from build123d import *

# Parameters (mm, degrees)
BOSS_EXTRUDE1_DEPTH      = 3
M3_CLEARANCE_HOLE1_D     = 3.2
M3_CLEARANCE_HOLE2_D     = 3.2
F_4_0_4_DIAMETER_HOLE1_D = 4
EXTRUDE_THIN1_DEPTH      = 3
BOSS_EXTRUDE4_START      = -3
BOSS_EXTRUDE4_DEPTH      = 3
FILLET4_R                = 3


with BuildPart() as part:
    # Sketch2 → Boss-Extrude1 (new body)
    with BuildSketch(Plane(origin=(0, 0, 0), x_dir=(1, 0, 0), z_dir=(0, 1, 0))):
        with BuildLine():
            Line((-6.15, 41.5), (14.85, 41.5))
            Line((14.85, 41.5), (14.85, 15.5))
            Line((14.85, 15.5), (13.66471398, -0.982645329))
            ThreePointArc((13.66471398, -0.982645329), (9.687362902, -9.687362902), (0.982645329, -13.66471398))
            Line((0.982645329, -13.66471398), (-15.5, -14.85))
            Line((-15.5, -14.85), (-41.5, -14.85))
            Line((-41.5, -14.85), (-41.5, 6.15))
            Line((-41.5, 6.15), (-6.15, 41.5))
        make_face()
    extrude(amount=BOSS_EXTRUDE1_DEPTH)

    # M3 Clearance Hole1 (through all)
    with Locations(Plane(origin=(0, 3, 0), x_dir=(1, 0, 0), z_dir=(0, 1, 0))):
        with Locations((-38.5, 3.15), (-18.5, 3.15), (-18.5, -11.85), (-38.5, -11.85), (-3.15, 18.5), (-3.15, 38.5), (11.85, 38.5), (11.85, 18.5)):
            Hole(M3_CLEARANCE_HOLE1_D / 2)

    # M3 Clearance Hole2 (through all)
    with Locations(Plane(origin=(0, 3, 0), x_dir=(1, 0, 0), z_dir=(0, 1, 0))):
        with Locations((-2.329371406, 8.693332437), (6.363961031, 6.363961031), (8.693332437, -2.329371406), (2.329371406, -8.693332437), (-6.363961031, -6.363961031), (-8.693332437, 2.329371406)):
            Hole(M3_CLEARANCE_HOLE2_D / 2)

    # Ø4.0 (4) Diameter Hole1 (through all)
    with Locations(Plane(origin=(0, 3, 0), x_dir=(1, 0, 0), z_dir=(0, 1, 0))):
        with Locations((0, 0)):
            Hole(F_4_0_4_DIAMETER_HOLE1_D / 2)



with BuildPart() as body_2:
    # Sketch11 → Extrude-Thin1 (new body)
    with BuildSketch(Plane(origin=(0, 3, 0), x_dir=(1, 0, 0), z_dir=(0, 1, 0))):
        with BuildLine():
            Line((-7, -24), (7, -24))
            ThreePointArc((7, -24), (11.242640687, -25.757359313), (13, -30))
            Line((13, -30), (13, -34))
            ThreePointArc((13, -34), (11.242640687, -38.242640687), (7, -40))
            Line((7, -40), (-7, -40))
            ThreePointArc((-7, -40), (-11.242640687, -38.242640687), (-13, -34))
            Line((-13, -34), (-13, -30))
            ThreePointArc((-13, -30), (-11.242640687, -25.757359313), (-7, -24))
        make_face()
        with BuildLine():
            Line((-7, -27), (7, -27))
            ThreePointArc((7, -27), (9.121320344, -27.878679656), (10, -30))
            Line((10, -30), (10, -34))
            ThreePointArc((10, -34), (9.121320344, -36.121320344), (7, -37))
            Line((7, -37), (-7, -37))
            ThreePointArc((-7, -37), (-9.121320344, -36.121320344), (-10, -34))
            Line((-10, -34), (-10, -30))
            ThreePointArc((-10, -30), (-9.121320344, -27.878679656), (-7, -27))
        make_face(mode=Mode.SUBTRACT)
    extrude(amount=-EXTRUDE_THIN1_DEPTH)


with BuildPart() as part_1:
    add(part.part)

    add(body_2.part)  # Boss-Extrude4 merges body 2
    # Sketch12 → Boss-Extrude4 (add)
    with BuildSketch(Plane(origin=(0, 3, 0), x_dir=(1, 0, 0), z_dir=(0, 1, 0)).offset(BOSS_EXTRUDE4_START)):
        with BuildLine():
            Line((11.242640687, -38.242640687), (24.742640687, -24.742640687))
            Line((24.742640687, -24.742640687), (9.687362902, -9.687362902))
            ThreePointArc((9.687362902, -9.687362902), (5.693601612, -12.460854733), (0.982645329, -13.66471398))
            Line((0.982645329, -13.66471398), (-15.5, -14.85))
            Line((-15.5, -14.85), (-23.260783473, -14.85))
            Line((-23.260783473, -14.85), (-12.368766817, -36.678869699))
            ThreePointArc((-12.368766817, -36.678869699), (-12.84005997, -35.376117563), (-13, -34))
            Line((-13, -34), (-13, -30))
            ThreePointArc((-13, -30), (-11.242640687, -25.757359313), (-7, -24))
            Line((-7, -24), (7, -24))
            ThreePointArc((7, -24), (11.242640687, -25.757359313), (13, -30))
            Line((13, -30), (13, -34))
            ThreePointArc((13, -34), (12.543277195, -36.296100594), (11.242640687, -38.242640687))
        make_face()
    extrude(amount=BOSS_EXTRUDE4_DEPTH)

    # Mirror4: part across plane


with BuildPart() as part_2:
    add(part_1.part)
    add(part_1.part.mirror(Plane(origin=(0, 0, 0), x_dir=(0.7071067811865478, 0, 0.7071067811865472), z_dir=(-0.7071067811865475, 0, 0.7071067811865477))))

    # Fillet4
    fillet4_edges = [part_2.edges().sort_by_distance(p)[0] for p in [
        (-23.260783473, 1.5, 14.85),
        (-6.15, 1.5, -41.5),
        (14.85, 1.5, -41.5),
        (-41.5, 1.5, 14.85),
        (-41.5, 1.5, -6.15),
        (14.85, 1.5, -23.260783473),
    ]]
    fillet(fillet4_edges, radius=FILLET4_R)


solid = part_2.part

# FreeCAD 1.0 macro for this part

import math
import FreeCAD as App
import Part
import Sketcher

V = App.Vector
Q = App.Units.Quantity


def edges_at(feature, points):
    """Names of the edges that pass closest to the given points."""
    edges = feature.Shape.Edges
    near = lambda p: min(range(len(edges)), key=lambda i: edges[i].distToShape(Part.Vertex(*p))[0])
    return sorted({f"Edge{near(p) + 1}" for p in points})

doc = App.newDocument("Part")
params = doc.addObject("Spreadsheet::Sheet", "Params")
for row, (alias, value) in enumerate([
    ("sketch1_radius", "13.7 mm"),
    ("sketch1_width", "21 mm"),
    ("sketch1_width2", "26 mm"),
    ("pad1_length", "3 mm"),
    ("sketch2_diameter", "3.2 mm"),
    ("hole_diameter", "3.2 mm"),
    ("sketch3_diameter", "3.2 mm"),
    ("hole2_diameter", "3.2 mm"),
    ("sketch4_diameter", "4 mm"),
    ("hole3_diameter", "4 mm"),
    ("sketch5_radius", "6 mm"),
    ("sketch5_radius2", "3 mm"),
    ("sketch5_width", "14 mm"),
    ("sketch5_height", "4 mm"),
    ("pad2_length", "3 mm"),
    ("sketch6_radius", "6 mm"),
    ("sketch6_radius2", "13.7 mm"),
    ("sketch6_width", "14 mm"),
    ("sketch6_height", "4 mm"),
    ("pad3_length", "3 mm"),
    ("fillet_radius", "3 mm"),
], start=1):
    params.set(f"A{row}", alias)
    params.set(f"B{row}", "=" + value)
    params.setAlias(f"B{row}", alias)

body = doc.addObject("PartDesign::Body", "Body")

# Sketch on XZ plane
sketch1 = body.newObject("Sketcher::SketchObject", "Sketch")
sketch1.AttachmentSupport = (doc.getObject("XZ_Plane"), [""])
sketch1.MapMode = "FlatFace"
sketch1.addGeometry([
    Part.LineSegment(V(15, -42, 0), V(-6, -42, 0)),  # 0
    Part.LineSegment(V(-6, -42, 0), V(-42, -6, 0)),  # 1
    Part.LineSegment(V(-42, -6, 0), V(-42, 15, 0)),  # 2
    Part.LineSegment(V(-42, 15, 0), V(-16, 15, 0)),  # 3
    Part.LineSegment(V(-16, 15, 0), V(1, 14, 0)),  # 4
    Part.ArcOfCircle(Part.Circle(V(0, 0, 0), V(0, 0, 1), 14), math.radians(4), math.radians(86)),  # 5
    Part.LineSegment(V(14, 1, 0), V(15, -16, 0)),  # 6
    Part.LineSegment(V(15, -16, 0), V(15, -42, 0)),  # 7
], False)
sketch1.addConstraint([
    Sketcher.Constraint("Coincident", 0, 2, 1, 1),
    Sketcher.Constraint("Coincident", 1, 2, 2, 1),
    Sketcher.Constraint("Coincident", 2, 2, 3, 1),
    Sketcher.Constraint("Coincident", 3, 2, 4, 1),
    Sketcher.Constraint("Tangent", 4, 2, 5, 2),
    Sketcher.Constraint("Tangent", 5, 1, 6, 1),
    Sketcher.Constraint("Coincident", 6, 2, 7, 1),
    Sketcher.Constraint("Coincident", 7, 2, 0, 1),
    Sketcher.Constraint("Horizontal", 0),
    Sketcher.Constraint("Vertical", 2),
    Sketcher.Constraint("Horizontal", 3),
    Sketcher.Constraint("Vertical", 7),
    Sketcher.Constraint("Coincident", 5, 3, -1, 1),
    Sketcher.Constraint("Equal", 0, 2),
    Sketcher.Constraint("Equal", 3, 7),
    Sketcher.Constraint("Equal", 4, 6),
    Sketcher.Constraint("Radius", 5, Q("13.7 mm")),
    Sketcher.Constraint("DistanceX", 0, 2, 0, 1, Q("21 mm")),
    Sketcher.Constraint("DistanceX", 3, 1, 3, 2, Q("26 mm")),
    Sketcher.Constraint("Angle", 1, Q("135 deg")),
    Sketcher.Constraint("DistanceY", 0, 2, -1, 1, Q("41.5 mm")),
    Sketcher.Constraint("DistanceX", 0, 2, -1, 1, Q("6.15 mm")),
])
sketch1.setExpression("Constraints[16]", "Params.sketch1_radius")
sketch1.setExpression("Constraints[17]", "Params.sketch1_width")
sketch1.setExpression("Constraints[18]", "Params.sketch1_width2")
pad1 = body.newObject("PartDesign::Pad", "Pad")
pad1.Profile = sketch1
pad1.setExpression("Length", "Params.pad1_length")
pad1.Reversed = True

# Sketch on XZ plane
sketch2 = body.newObject("Sketcher::SketchObject", "Sketch001")
sketch2.AttachmentSupport = (doc.getObject("XZ_Plane"), [""])
sketch2.MapMode = "FlatFace"
sketch2.AttachmentOffset = App.Placement(V(0, 0, -3), App.Rotation())
sketch2.addGeometry([
    Part.Circle(V(-38.5, -3.1, 0), V(0, 0, 1), 1.6),  # 0
    Part.Circle(V(-18.5, -3.1, 0), V(0, 0, 1), 1.6),  # 1
    Part.Circle(V(-18.5, 11.8, 0), V(0, 0, 1), 1.6),  # 2
    Part.Circle(V(-38.5, 11.8, 0), V(0, 0, 1), 1.6),  # 3
    Part.Circle(V(-3.1, -18.5, 0), V(0, 0, 1), 1.6),  # 4
    Part.Circle(V(-3.1, -38.5, 0), V(0, 0, 1), 1.6),  # 5
    Part.Circle(V(11.8, -38.5, 0), V(0, 0, 1), 1.6),  # 6
    Part.Circle(V(11.8, -18.5, 0), V(0, 0, 1), 1.6),  # 7
], False)
sketch2.addConstraint([
    Sketcher.Constraint("Equal", 0, 1),
    Sketcher.Constraint("Equal", 1, 2),
    Sketcher.Constraint("Equal", 2, 3),
    Sketcher.Constraint("Equal", 3, 4),
    Sketcher.Constraint("Equal", 4, 5),
    Sketcher.Constraint("Equal", 5, 6),
    Sketcher.Constraint("Equal", 6, 7),
    Sketcher.Constraint("Horizontal", 0, 3, 1, 3),
    Sketcher.Constraint("Horizontal", 2, 3, 3, 3),
    Sketcher.Constraint("Horizontal", 5, 3, 6, 3),
    Sketcher.Constraint("Horizontal", 4, 3, 7, 3),
    Sketcher.Constraint("Vertical", 1, 3, 2, 3),
    Sketcher.Constraint("Vertical", 0, 3, 3, 3),
    Sketcher.Constraint("Vertical", 4, 3, 5, 3),
    Sketcher.Constraint("Vertical", 6, 3, 7, 3),
    Sketcher.Constraint("Diameter", 0, Q("3.2 mm")),
    Sketcher.Constraint("DistanceX", 0, 3, 1, 3, Q("20 mm")),
    Sketcher.Constraint("DistanceY", 1, 3, 2, 3, Q("15 mm")),
    Sketcher.Constraint("DistanceY", 5, 3, 4, 3, Q("20 mm")),
    Sketcher.Constraint("DistanceX", 5, 3, 6, 3, Q("15 mm")),
    Sketcher.Constraint("DistanceX", 0, 3, -1, 1, Q("38.5 mm")),
    Sketcher.Constraint("DistanceY", 4, 3, -1, 1, Q("18.5 mm")),
    Sketcher.Constraint("DistanceY", 0, 3, -1, 1, Q("3.15 mm")),
    Sketcher.Constraint("DistanceX", 4, 3, -1, 1, Q("3.15 mm")),
])
sketch2.setExpression("Constraints[15]", "Params.sketch2_diameter")
doc.recompute()
hole = body.newObject("PartDesign::Hole", "Hole")
hole.Profile = sketch2
hole.ThreadType = "None"
hole.setExpression("Diameter", "Params.hole_diameter")
hole.DepthType = "ThroughAll"
hole.Reversed = True

# Sketch on XZ plane
sketch3 = body.newObject("Sketcher::SketchObject", "Sketch002")
sketch3.AttachmentSupport = (doc.getObject("XZ_Plane"), [""])
sketch3.MapMode = "FlatFace"
sketch3.AttachmentOffset = App.Placement(V(0, 0, -3), App.Rotation())
sketch3.addGeometry([
    Part.Circle(V(-2.3, -8.7, 0), V(0, 0, 1), 1.6),  # 0
    Part.Circle(V(6.4, -6.4, 0), V(0, 0, 1), 1.6),  # 1
    Part.Circle(V(8.7, 2.3, 0), V(0, 0, 1), 1.6),  # 2
    Part.Circle(V(2.3, 8.7, 0), V(0, 0, 1), 1.6),  # 3
    Part.Circle(V(-6.4, 6.4, 0), V(0, 0, 1), 1.6),  # 4
    Part.Circle(V(-8.7, -2.3, 0), V(0, 0, 1), 1.6),  # 5
], False)
sketch3.addConstraint([
    Sketcher.Constraint("Equal", 0, 1),
    Sketcher.Constraint("Equal", 1, 2),
    Sketcher.Constraint("Equal", 2, 3),
    Sketcher.Constraint("Equal", 3, 4),
    Sketcher.Constraint("Equal", 4, 5),
    Sketcher.Constraint("Symmetric", 0, 3, 3, 3, -1, 1),
    Sketcher.Constraint("Symmetric", 1, 3, 4, 3, -1, 1),
    Sketcher.Constraint("Symmetric", 2, 3, 5, 3, -1, 1),
    Sketcher.Constraint("Diameter", 0, Q("3.2 mm")),
    Sketcher.Constraint("DistanceX", 0, 3, -1, 1, Q("2.329371 mm")),
    Sketcher.Constraint("DistanceX", -1, 1, 1, 3, Q("6.363961 mm")),
    Sketcher.Constraint("DistanceY", 1, 3, -1, 1, Q("6.363961 mm")),
    Sketcher.Constraint("DistanceY", -1, 1, 2, 3, Q("2.329371 mm")),
    Sketcher.Constraint("DistanceY", 0, 3, 1, 3, Q("2.329371 mm")),
    Sketcher.Constraint("DistanceX", 1, 3, 2, 3, Q("2.329371 mm")),
])
sketch3.setExpression("Constraints[8]", "Params.sketch3_diameter")
doc.recompute()
hole2 = body.newObject("PartDesign::Hole", "Hole001")
hole2.Profile = sketch3
hole2.ThreadType = "None"
hole2.setExpression("Diameter", "Params.hole2_diameter")
hole2.DepthType = "ThroughAll"
hole2.Reversed = True

# Sketch on XZ plane
sketch4 = body.newObject("Sketcher::SketchObject", "Sketch003")
sketch4.AttachmentSupport = (doc.getObject("XZ_Plane"), [""])
sketch4.MapMode = "FlatFace"
sketch4.AttachmentOffset = App.Placement(V(0, 0, -3), App.Rotation())
sketch4.addGeometry(Part.Circle(V(0, 0, 0), V(0, 0, 1), 2), False)
sketch4.addConstraint([
    Sketcher.Constraint("Coincident", 0, 3, -1, 1),
    Sketcher.Constraint("Diameter", 0, Q("4 mm")),
])
sketch4.setExpression("Constraints[1]", "Params.sketch4_diameter")
doc.recompute()
hole3 = body.newObject("PartDesign::Hole", "Hole002")
hole3.Profile = sketch4
hole3.ThreadType = "None"
hole3.setExpression("Diameter", "Params.hole3_diameter")
hole3.DepthType = "ThroughAll"
hole3.Reversed = True
body2 = doc.addObject("PartDesign::Body", "Body001")

# Sketch on XZ plane
sketch5 = body2.newObject("Sketcher::SketchObject", "Sketch004")
sketch5.AttachmentSupport = (doc.getObject("XZ_Plane001"), [""])
sketch5.MapMode = "FlatFace"
sketch5.AttachmentOffset = App.Placement(V(0, 0, -3), App.Rotation())
sketch5.addGeometry([
    Part.LineSegment(V(7, 24, 0), V(-7, 24, 0)),  # 0
    Part.ArcOfCircle(Part.Circle(V(-7, 30, 0), V(0, 0, 1), 6), math.radians(180), math.radians(270)),  # 1
    Part.LineSegment(V(-13, 30, 0), V(-13, 34, 0)),  # 2
    Part.ArcOfCircle(Part.Circle(V(-7, 34, 0), V(0, 0, 1), 6), math.radians(90), math.radians(180)),  # 3
    Part.LineSegment(V(-7, 40, 0), V(7, 40, 0)),  # 4
    Part.ArcOfCircle(Part.Circle(V(7, 34, 0), V(0, 0, 1), 6), math.radians(0), math.radians(90)),  # 5
    Part.LineSegment(V(13, 34, 0), V(13, 30, 0)),  # 6
    Part.ArcOfCircle(Part.Circle(V(7, 30, 0), V(0, 0, 1), 6), math.radians(-90), math.radians(0)),  # 7
    Part.LineSegment(V(-7, 27, 0), V(7, 27, 0)),  # 8
    Part.ArcOfCircle(Part.Circle(V(7, 30, 0), V(0, 0, 1), 3), math.radians(-90), math.radians(0)),  # 9
    Part.LineSegment(V(10, 30, 0), V(10, 34, 0)),  # 10
    Part.ArcOfCircle(Part.Circle(V(7, 34, 0), V(0, 0, 1), 3), math.radians(0), math.radians(90)),  # 11
    Part.LineSegment(V(7, 37, 0), V(-7, 37, 0)),  # 12
    Part.ArcOfCircle(Part.Circle(V(-7, 34, 0), V(0, 0, 1), 3), math.radians(90), math.radians(180)),  # 13
    Part.LineSegment(V(-10, 34, 0), V(-10, 30, 0)),  # 14
    Part.ArcOfCircle(Part.Circle(V(-7, 30, 0), V(0, 0, 1), 3), math.radians(180), math.radians(270)),  # 15
], False)
sketch5.addConstraint([
    Sketcher.Constraint("Tangent", 0, 2, 1, 2),
    Sketcher.Constraint("Tangent", 1, 1, 2, 1),
    Sketcher.Constraint("Tangent", 2, 2, 3, 2),
    Sketcher.Constraint("Tangent", 3, 1, 4, 1),
    Sketcher.Constraint("Tangent", 4, 2, 5, 2),
    Sketcher.Constraint("Tangent", 5, 1, 6, 1),
    Sketcher.Constraint("Tangent", 6, 2, 7, 2),
    Sketcher.Constraint("Tangent", 7, 1, 0, 1),
    Sketcher.Constraint("Tangent", 8, 2, 9, 1),
    Sketcher.Constraint("Tangent", 9, 2, 10, 1),
    Sketcher.Constraint("Tangent", 10, 2, 11, 1),
    Sketcher.Constraint("Tangent", 11, 2, 12, 1),
    Sketcher.Constraint("Tangent", 12, 2, 13, 1),
    Sketcher.Constraint("Tangent", 13, 2, 14, 1),
    Sketcher.Constraint("Tangent", 14, 2, 15, 1),
    Sketcher.Constraint("Tangent", 15, 2, 8, 1),
    Sketcher.Constraint("Horizontal", 0),
    Sketcher.Constraint("Vertical", 2),
    Sketcher.Constraint("Horizontal", 4),
    Sketcher.Constraint("Vertical", 6),
    Sketcher.Constraint("Horizontal", 8),
    Sketcher.Constraint("Vertical", 10),
    Sketcher.Constraint("Horizontal", 12),
    Sketcher.Constraint("Vertical", 14),
    Sketcher.Constraint("Coincident", 9, 3, 7, 3),
    Sketcher.Constraint("Coincident", 11, 3, 5, 3),
    Sketcher.Constraint("Coincident", 13, 3, 3, 3),
    Sketcher.Constraint("Equal", 1, 3),
    Sketcher.Constraint("Equal", 3, 5),
    Sketcher.Constraint("Equal", 5, 7),
    Sketcher.Constraint("Equal", 13, 15),
    Sketcher.Constraint("Radius", 1, Q("6 mm")),
    Sketcher.Constraint("Radius", 9, Q("3 mm")),
    Sketcher.Constraint("DistanceX", 0, 2, 0, 1, Q("14 mm")),
    Sketcher.Constraint("DistanceY", 2, 1, 2, 2, Q("4 mm")),
    Sketcher.Constraint("DistanceX", 1, 3, -1, 1, Q("7 mm")),
    Sketcher.Constraint("DistanceY", -1, 1, 1, 3, Q("30 mm")),
])
sketch5.setExpression("Constraints[31]", "Params.sketch5_radius")
sketch5.setExpression("Constraints[32]", "Params.sketch5_radius2")
sketch5.setExpression("Constraints[33]", "Params.sketch5_width")
sketch5.setExpression("Constraints[34]", "Params.sketch5_height")
pad2 = body2.newObject("PartDesign::Pad", "Pad001")
pad2.Profile = sketch5
pad2.setExpression("Length", "Params.pad2_length")
body.AllowCompound = True
doc.recompute()

boolean = body.newObject("PartDesign::Boolean", "Boolean")
boolean.Type = "Fuse"
boolean.addObjects([body2])

# Sketch on XZ plane
sketch6 = body.newObject("Sketcher::SketchObject", "Sketch005")
sketch6.AttachmentSupport = (doc.getObject("XZ_Plane"), [""])
sketch6.MapMode = "FlatFace"
sketch6.addGeometry([
    Part.LineSegment(V(11.2, 38.2, 0), V(24.7, 24.7, 0)),  # 0
    Part.LineSegment(V(24.7, 24.7, 0), V(9.7, 9.7, 0)),  # 1
    Part.ArcOfCircle(Part.Circle(V(0, 0, 0), V(0, 0, 1), 13.7), math.radians(45), math.radians(86)),  # 2
    Part.LineSegment(V(1, 13.7, 0), V(-15.5, 14.8, 0)),  # 3
    Part.LineSegment(V(-15.5, 14.8, 0), V(-23.3, 14.8, 0)),  # 4
    Part.LineSegment(V(-23.3, 14.8, 0), V(-12.4, 36.7, 0)),  # 5
    Part.ArcOfCircle(Part.Circle(V(-7, 34, 0), V(0, 0, 1), 6), math.radians(153), math.radians(180)),  # 6
    Part.LineSegment(V(-13, 34, 0), V(-13, 30, 0)),  # 7
    Part.ArcOfCircle(Part.Circle(V(-7, 30, 0), V(0, 0, 1), 6), math.radians(180), math.radians(270)),  # 8
    Part.LineSegment(V(-7, 24, 0), V(7, 24, 0)),  # 9
    Part.ArcOfCircle(Part.Circle(V(7, 30, 0), V(0, 0, 1), 6), math.radians(-90), math.radians(0)),  # 10
    Part.LineSegment(V(13, 30, 0), V(13, 34, 0)),  # 11
    Part.ArcOfCircle(Part.Circle(V(7, 34, 0), V(0, 0, 1), 6), math.radians(0), math.radians(45)),  # 12
], False)
sketch6.addConstraint([
    Sketcher.Constraint("Coincident", 0, 2, 1, 1),
    Sketcher.Constraint("Coincident", 1, 2, 2, 1),
    Sketcher.Constraint("Tangent", 2, 2, 3, 1),
    Sketcher.Constraint("Coincident", 3, 2, 4, 1),
    Sketcher.Constraint("Coincident", 4, 2, 5, 1),
    Sketcher.Constraint("Tangent", 5, 2, 6, 1),
    Sketcher.Constraint("Tangent", 6, 2, 7, 1),
    Sketcher.Constraint("Tangent", 7, 2, 8, 1),
    Sketcher.Constraint("Tangent", 8, 2, 9, 1),
    Sketcher.Constraint("Tangent", 9, 2, 10, 1),
    Sketcher.Constraint("Tangent", 10, 2, 11, 1),
    Sketcher.Constraint("Tangent", 11, 2, 12, 1),
    Sketcher.Constraint("Tangent", 12, 2, 0, 1),
    Sketcher.Constraint("Horizontal", 4),
    Sketcher.Constraint("Vertical", 7),
    Sketcher.Constraint("Horizontal", 9),
    Sketcher.Constraint("Vertical", 11),
    Sketcher.Constraint("Coincident", 2, 3, -1, 1),
    Sketcher.Constraint("Equal", 6, 8),
    Sketcher.Constraint("Equal", 8, 10),
    Sketcher.Constraint("Equal", 10, 12),
    Sketcher.Constraint("Symmetric", 6, 3, 12, 3, -2),
    Sketcher.Constraint("Perpendicular", 0, 1),
    Sketcher.Constraint("Radius", 6, Q("6 mm")),
    Sketcher.Constraint("Radius", 2, Q("13.7 mm")),
    Sketcher.Constraint("DistanceX", 9, 1, 9, 2, Q("14 mm")),
    Sketcher.Constraint("DistanceY", 7, 2, 7, 1, Q("4 mm")),
    Sketcher.Constraint("Angle", 0, Q("-45 deg")),
    Sketcher.Constraint("DistanceY", -1, 1, 6, 3, Q("34 mm")),
    Sketcher.Constraint("DistanceX", 3, 2, -1, 1, Q("15.5 mm")),
    Sketcher.Constraint("DistanceY", -1, 1, 3, 2, Q("14.85 mm")),
    Sketcher.Constraint("Distance", 5, Q("24.395401 mm")),
    Sketcher.Constraint("DistanceX", -1, 1, 0, 2, Q("24.742641 mm")),
])
sketch6.setExpression("Constraints[23]", "Params.sketch6_radius")
sketch6.setExpression("Constraints[24]", "Params.sketch6_radius2")
sketch6.setExpression("Constraints[25]", "Params.sketch6_width")
sketch6.setExpression("Constraints[26]", "Params.sketch6_height")
pad3 = body.newObject("PartDesign::Pad", "Pad002")
pad3.Profile = sketch6
pad3.setExpression("Length", "Params.pad3_length")
pad3.Reversed = True
body3 = doc.addObject("PartDesign::Body", "Body002")
doc.recompute()

body3.BaseFeature = body
doc.recompute()

mirroring = doc.addObject("Part::Mirroring", "Mirroring")
mirroring.Source = body
mirroring.Base = V(0, 0, 0)
mirroring.Normal = V(-0.707106781, 0, 0.707106781)
body4 = doc.addObject("PartDesign::Body", "Body003")
body4.BaseFeature = mirroring
boolean2 = body3.newObject("PartDesign::Boolean", "Boolean001")
boolean2.Type = "Fuse"
boolean2.addObjects([body4])
doc.recompute()

fillet = body3.newObject("PartDesign::Fillet", "Fillet")
fillet.Base = (boolean2, edges_at(boolean2, [
    (-23.261, 1.5, 14.85),
    (-6.15, 1.5, -41.5),
    (14.85, 1.5, -41.5),
    (-41.5, 1.5, 14.85),
    (-41.5, 1.5, -6.15),
    (14.85, 1.5, -23.261),
]))
fillet.setExpression("Radius", "Params.fillet_radius")
mirroring.Visibility = False

doc.recompute()
